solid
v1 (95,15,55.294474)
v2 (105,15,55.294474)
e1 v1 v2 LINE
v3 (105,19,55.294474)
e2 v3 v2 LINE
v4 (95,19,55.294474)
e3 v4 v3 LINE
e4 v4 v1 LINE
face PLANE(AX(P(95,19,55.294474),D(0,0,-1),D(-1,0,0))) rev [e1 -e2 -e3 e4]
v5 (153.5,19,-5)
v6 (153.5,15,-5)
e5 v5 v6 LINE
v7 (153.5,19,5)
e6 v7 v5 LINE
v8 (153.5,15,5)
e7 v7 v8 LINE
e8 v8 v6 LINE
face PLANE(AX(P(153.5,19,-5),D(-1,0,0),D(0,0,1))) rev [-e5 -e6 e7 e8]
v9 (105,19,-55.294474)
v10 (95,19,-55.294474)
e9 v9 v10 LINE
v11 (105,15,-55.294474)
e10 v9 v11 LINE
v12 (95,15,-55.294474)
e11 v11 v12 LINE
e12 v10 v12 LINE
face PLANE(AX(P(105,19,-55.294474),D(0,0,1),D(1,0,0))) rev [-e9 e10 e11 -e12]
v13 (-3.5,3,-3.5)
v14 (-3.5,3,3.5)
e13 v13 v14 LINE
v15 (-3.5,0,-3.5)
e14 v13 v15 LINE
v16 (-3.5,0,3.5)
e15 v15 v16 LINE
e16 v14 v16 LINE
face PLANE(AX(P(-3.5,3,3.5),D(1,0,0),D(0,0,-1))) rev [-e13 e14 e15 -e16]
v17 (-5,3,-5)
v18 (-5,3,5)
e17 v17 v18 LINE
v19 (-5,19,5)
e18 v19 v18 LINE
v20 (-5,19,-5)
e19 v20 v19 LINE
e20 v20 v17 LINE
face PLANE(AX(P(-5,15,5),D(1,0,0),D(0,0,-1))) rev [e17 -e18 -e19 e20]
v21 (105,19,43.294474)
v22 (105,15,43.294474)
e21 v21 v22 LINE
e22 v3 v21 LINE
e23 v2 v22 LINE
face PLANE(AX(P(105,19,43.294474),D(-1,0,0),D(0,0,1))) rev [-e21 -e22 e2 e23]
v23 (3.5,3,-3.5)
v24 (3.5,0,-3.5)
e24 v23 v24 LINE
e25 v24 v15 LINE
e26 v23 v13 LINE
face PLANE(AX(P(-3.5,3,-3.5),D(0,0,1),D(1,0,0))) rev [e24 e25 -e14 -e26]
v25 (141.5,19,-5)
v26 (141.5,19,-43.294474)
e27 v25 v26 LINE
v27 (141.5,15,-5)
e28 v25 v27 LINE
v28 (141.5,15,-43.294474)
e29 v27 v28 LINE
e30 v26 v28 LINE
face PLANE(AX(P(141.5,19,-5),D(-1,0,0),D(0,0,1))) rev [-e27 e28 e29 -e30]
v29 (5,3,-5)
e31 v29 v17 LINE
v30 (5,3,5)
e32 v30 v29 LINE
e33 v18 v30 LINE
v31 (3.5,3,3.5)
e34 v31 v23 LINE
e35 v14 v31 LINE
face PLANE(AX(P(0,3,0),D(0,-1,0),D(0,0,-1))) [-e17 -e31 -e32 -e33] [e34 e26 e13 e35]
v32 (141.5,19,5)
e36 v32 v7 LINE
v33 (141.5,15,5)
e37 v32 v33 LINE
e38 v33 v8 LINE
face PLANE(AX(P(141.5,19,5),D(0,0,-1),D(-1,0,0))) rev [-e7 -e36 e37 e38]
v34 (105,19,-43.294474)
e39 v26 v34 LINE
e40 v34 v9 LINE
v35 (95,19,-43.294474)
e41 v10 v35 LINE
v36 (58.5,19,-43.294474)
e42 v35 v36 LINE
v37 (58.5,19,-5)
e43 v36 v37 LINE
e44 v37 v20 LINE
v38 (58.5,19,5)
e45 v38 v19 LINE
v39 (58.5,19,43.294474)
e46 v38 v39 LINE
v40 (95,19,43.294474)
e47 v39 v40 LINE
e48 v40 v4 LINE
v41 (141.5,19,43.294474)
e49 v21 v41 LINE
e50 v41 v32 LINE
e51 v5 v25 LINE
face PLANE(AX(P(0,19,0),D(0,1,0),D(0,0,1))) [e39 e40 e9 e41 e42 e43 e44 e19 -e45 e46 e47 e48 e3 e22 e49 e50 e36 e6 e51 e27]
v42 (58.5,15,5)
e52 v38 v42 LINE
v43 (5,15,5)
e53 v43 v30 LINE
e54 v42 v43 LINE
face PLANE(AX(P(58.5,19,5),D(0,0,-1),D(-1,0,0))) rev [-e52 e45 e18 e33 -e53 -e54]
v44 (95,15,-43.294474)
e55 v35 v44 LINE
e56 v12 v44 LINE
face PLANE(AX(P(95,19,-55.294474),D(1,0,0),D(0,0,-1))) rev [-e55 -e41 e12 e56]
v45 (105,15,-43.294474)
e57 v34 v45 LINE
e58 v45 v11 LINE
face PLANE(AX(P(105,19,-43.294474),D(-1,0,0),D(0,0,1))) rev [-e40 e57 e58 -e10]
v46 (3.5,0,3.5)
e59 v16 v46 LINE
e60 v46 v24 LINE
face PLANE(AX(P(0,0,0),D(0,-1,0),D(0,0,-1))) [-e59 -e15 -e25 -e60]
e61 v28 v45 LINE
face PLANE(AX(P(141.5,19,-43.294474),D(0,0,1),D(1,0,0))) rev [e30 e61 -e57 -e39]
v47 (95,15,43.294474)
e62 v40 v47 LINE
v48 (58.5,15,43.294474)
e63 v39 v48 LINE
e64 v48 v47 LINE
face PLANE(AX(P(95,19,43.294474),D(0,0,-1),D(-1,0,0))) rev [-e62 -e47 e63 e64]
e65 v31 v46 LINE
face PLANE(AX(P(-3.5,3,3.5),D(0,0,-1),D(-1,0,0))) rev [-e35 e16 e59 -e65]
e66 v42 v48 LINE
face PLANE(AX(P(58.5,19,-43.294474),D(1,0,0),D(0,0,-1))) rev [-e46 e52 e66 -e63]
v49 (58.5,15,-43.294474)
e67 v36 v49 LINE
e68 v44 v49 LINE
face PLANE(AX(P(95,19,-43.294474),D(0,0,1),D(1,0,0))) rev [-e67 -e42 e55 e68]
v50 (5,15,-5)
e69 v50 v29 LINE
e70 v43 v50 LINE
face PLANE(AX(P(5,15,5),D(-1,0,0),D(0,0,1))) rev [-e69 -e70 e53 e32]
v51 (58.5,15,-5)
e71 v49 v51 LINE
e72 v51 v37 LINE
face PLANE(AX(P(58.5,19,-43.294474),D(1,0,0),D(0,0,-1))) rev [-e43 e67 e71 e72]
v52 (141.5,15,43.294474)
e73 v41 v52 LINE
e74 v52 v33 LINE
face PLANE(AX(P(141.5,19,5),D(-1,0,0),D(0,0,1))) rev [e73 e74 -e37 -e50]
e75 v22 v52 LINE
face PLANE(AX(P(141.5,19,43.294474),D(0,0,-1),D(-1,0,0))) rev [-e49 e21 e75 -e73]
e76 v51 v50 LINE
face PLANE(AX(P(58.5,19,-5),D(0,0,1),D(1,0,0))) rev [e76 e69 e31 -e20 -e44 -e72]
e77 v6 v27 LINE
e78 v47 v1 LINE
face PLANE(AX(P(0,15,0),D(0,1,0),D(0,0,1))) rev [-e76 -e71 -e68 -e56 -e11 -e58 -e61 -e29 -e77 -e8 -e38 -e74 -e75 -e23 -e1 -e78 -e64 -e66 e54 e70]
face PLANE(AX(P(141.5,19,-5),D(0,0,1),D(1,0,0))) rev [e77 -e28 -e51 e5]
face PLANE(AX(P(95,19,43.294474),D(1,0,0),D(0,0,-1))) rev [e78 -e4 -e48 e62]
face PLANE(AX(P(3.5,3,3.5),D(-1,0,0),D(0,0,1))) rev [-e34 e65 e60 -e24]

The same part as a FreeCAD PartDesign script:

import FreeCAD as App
import Part
import Sketcher

V = App.Vector


def add_polygon(sketch, points):
    """Adds a closed chain of lines whose ends are joined by coincident constraints."""
    first, n = sketch.GeometryCount, len(points)
    for a, b in zip(points, points[1:] + points[:1]):
        sketch.addGeometry(Part.LineSegment(App.Vector(*a, 0), App.Vector(*b, 0)), False)
    for i in range(n):
        sketch.addConstraint(Sketcher.Constraint("Coincident", first + i, 2, first + (i + 1) % n, 1))

doc = App.newDocument("Part")
body = doc.addObject("PartDesign::Body", "Body")

# Sketch on XZ plane
sketch1 = body.newObject("Sketcher::SketchObject", "Sketch")
sketch1.AttachmentSupport = (doc.getObject("XZ_Plane"), [""])
sketch1.MapMode = "FlatFace"
add_polygon(sketch1, [(-4, -4), (-4, 4), (4, 4), (4, -4)])  # lines 0-3
sketch1.addConstraint([
    Sketcher.Constraint("Vertical", 0),
    Sketcher.Constraint("Horizontal", 1),
    Sketcher.Constraint("Vertical", 2),
    Sketcher.Constraint("Horizontal", 3),
    Sketcher.Constraint("Symmetric", 0, 2, 2, 2, -1, 1),
    Sketcher.Constraint("Equal", 3, 0),
    Sketcher.Constraint("DistanceX", 1, 1, 1, 2, 7.0),
])
pad1 = body.newObject("PartDesign::Pad", "Pad")
pad1.Profile = sketch1
pad1.Length = 3
pad1.Reversed = True

# Sketch on XZ plane
sketch2 = body.newObject("Sketcher::SketchObject", "Sketch001")
sketch2.AttachmentSupport = (doc.getObject("XZ_Plane"), [""])
sketch2.MapMode = "FlatFace"
sketch2.AttachmentOffset = App.Placement(V(0, 0, -3), App.Rotation())
add_polygon(sketch2, [(-5, -5), (-5, 5), (5, 5), (5, -5)])  # lines 0-3
sketch2.addConstraint([
    Sketcher.Constraint("Vertical", 0),
    Sketcher.Constraint("Horizontal", 1),
    Sketcher.Constraint("Vertical", 2),
    Sketcher.Constraint("Horizontal", 3),
    Sketcher.Constraint("Symmetric", 0, 2, 2, 2, -1, 1),
    Sketcher.Constraint("Equal", 3, 0),
    Sketcher.Constraint("DistanceX", 1, 1, 1, 2, 10.0),
])
pad2 = body.newObject("PartDesign::Pad", "Pad001")
pad2.Profile = sketch2
pad2.Length = 12
pad2.Reversed = True

# Sketch on XZ plane
sketch3 = body.newObject("Sketcher::SketchObject", "Sketch002")
sketch3.AttachmentSupport = (doc.getObject("XZ_Plane"), [""])
sketch3.MapMode = "FlatFace"
sketch3.AttachmentOffset = App.Placement(V(0, 0, -15), App.Rotation())
add_polygon(sketch3, [(-5, -5), (-5, 5), (5, 5), (5, -5)])  # lines 0-3
sketch3.addConstraint([
    Sketcher.Constraint("Vertical", 0),
    Sketcher.Constraint("Horizontal", 1),
    Sketcher.Constraint("Vertical", 2),
    Sketcher.Constraint("Horizontal", 3),
    Sketcher.Constraint("Symmetric", 0, 2, 2, 2, -1, 1),
    Sketcher.Constraint("Equal", 3, 0),
    Sketcher.Constraint("DistanceX", 1, 1, 1, 2, 10.0),
])
pad3 = body.newObject("PartDesign::Pad", "Pad002")
pad3.Profile = sketch3
pad3.Length = 4
pad3.Reversed = True
body2 = doc.addObject("PartDesign::Body", "Body001")

# Sketch on XZ plane
sketch4 = body2.newObject("Sketcher::SketchObject", "Sketch003")
sketch4.AttachmentSupport = (doc.getObject("XZ_Plane001"), [""])
sketch4.MapMode = "FlatFace"
sketch4.AttachmentOffset = App.Placement(V(0, 0, -15), App.Rotation())
add_polygon(sketch4, [(105, -43), (105, -55), (95, -55), (95, -43), (58, -43), (58, 43), (95, 43), (95, 55), (105, 55), (105, 43), (142, 43), (142, 5), (154, 5), (154, -5), (142, -5), (142, -43)])  # lines 0-15
sketch4.addConstraint([
    Sketcher.Constraint("Vertical", 0),
    Sketcher.Constraint("Horizontal", 1),
    Sketcher.Constraint("Vertical", 2),
    Sketcher.Constraint("Horizontal", 3),
    Sketcher.Constraint("Vertical", 4),
    Sketcher.Constraint("Horizontal", 5),
    Sketcher.Constraint("Vertical", 6),
    Sketcher.Constraint("Horizontal", 7),
    Sketcher.Constraint("Vertical", 8),
    Sketcher.Constraint("Horizontal", 9),
    Sketcher.Constraint("Vertical", 10),
    Sketcher.Constraint("Horizontal", 11),
    Sketcher.Constraint("Vertical", 12),
    Sketcher.Constraint("Horizontal", 13),
    Sketcher.Constraint("Vertical", 14),
    Sketcher.Constraint("Horizontal", 15),
    Sketcher.Constraint("Symmetric", 2, 2, 5, 2, -1),
    Sketcher.Constraint("Symmetric", 0, 2, 7, 2, -1),
    Sketcher.Constraint("Symmetric", 10, 2, 13, 2, -1),
    Sketcher.Constraint("Horizontal", 5, 2, 8, 2),
    Sketcher.Constraint("Horizontal", 3, 2, 14, 2),
    Sketcher.Constraint("Equal", 5, 9),
    Sketcher.Constraint("Equal", 13, 0),
    Sketcher.Constraint("Equal", 7, 12),
    Sketcher.Constraint("DistanceX", 1, 2, 1, 1, 10.0),
    Sketcher.Constraint("DistanceX", 11, 1, 11, 2, 12.0),
    Sketcher.Constraint("DistanceX", 3, 2, 3, 1, 36.5),
    Sketcher.Constraint("DistanceX", -1, 1, 0, 2, 105.0),
    Sketcher.Constraint("DistanceY", 4, 1, 4, 2, 86.588947),
])
pad4 = body2.newObject("PartDesign::Pad", "Pad003")
pad4.Profile = sketch4
pad4.Length = 4
pad4.Reversed = True
body.AllowCompound = True
doc.recompute()

boolean = body.newObject("PartDesign::Boolean", "Boolean")
boolean.Type = "Fuse"
boolean.addObjects([body2])

# Sketch on YZ plane
sketch5 = body.newObject("Sketcher::SketchObject", "Sketch004")
sketch5.AttachmentSupport = (doc.getObject("YZ_Plane"), [""])
sketch5.MapMode = "FlatFace"
sketch5.AttachmentOffset = App.Placement(V(0, 0, 5), App.Rotation())
add_polygon(sketch5, [(19, 5), (15, 5), (15, -5), (19, -5)])  # lines 0-3
sketch5.addConstraint([
    Sketcher.Constraint("Horizontal", 0),
    Sketcher.Constraint("Vertical", 1),
    Sketcher.Constraint("Horizontal", 2),
    Sketcher.Constraint("Vertical", 3),
    Sketcher.Constraint("DistanceX", 0, 2, 0, 1, 4.0),
    Sketcher.Constraint("DistanceY", 1, 2, 1, 1, 10.0),
    Sketcher.Constraint("DistanceX", -1, 1, 0, 2, 15.0),
    Sketcher.Constraint("DistanceY", -1, 1, 0, 2, 5.0),
])
pad5 = body.newObject("PartDesign::Pad", "Pad004")
pad5.Profile = sketch5
pad5.Length = 53.5

doc.recompute()
